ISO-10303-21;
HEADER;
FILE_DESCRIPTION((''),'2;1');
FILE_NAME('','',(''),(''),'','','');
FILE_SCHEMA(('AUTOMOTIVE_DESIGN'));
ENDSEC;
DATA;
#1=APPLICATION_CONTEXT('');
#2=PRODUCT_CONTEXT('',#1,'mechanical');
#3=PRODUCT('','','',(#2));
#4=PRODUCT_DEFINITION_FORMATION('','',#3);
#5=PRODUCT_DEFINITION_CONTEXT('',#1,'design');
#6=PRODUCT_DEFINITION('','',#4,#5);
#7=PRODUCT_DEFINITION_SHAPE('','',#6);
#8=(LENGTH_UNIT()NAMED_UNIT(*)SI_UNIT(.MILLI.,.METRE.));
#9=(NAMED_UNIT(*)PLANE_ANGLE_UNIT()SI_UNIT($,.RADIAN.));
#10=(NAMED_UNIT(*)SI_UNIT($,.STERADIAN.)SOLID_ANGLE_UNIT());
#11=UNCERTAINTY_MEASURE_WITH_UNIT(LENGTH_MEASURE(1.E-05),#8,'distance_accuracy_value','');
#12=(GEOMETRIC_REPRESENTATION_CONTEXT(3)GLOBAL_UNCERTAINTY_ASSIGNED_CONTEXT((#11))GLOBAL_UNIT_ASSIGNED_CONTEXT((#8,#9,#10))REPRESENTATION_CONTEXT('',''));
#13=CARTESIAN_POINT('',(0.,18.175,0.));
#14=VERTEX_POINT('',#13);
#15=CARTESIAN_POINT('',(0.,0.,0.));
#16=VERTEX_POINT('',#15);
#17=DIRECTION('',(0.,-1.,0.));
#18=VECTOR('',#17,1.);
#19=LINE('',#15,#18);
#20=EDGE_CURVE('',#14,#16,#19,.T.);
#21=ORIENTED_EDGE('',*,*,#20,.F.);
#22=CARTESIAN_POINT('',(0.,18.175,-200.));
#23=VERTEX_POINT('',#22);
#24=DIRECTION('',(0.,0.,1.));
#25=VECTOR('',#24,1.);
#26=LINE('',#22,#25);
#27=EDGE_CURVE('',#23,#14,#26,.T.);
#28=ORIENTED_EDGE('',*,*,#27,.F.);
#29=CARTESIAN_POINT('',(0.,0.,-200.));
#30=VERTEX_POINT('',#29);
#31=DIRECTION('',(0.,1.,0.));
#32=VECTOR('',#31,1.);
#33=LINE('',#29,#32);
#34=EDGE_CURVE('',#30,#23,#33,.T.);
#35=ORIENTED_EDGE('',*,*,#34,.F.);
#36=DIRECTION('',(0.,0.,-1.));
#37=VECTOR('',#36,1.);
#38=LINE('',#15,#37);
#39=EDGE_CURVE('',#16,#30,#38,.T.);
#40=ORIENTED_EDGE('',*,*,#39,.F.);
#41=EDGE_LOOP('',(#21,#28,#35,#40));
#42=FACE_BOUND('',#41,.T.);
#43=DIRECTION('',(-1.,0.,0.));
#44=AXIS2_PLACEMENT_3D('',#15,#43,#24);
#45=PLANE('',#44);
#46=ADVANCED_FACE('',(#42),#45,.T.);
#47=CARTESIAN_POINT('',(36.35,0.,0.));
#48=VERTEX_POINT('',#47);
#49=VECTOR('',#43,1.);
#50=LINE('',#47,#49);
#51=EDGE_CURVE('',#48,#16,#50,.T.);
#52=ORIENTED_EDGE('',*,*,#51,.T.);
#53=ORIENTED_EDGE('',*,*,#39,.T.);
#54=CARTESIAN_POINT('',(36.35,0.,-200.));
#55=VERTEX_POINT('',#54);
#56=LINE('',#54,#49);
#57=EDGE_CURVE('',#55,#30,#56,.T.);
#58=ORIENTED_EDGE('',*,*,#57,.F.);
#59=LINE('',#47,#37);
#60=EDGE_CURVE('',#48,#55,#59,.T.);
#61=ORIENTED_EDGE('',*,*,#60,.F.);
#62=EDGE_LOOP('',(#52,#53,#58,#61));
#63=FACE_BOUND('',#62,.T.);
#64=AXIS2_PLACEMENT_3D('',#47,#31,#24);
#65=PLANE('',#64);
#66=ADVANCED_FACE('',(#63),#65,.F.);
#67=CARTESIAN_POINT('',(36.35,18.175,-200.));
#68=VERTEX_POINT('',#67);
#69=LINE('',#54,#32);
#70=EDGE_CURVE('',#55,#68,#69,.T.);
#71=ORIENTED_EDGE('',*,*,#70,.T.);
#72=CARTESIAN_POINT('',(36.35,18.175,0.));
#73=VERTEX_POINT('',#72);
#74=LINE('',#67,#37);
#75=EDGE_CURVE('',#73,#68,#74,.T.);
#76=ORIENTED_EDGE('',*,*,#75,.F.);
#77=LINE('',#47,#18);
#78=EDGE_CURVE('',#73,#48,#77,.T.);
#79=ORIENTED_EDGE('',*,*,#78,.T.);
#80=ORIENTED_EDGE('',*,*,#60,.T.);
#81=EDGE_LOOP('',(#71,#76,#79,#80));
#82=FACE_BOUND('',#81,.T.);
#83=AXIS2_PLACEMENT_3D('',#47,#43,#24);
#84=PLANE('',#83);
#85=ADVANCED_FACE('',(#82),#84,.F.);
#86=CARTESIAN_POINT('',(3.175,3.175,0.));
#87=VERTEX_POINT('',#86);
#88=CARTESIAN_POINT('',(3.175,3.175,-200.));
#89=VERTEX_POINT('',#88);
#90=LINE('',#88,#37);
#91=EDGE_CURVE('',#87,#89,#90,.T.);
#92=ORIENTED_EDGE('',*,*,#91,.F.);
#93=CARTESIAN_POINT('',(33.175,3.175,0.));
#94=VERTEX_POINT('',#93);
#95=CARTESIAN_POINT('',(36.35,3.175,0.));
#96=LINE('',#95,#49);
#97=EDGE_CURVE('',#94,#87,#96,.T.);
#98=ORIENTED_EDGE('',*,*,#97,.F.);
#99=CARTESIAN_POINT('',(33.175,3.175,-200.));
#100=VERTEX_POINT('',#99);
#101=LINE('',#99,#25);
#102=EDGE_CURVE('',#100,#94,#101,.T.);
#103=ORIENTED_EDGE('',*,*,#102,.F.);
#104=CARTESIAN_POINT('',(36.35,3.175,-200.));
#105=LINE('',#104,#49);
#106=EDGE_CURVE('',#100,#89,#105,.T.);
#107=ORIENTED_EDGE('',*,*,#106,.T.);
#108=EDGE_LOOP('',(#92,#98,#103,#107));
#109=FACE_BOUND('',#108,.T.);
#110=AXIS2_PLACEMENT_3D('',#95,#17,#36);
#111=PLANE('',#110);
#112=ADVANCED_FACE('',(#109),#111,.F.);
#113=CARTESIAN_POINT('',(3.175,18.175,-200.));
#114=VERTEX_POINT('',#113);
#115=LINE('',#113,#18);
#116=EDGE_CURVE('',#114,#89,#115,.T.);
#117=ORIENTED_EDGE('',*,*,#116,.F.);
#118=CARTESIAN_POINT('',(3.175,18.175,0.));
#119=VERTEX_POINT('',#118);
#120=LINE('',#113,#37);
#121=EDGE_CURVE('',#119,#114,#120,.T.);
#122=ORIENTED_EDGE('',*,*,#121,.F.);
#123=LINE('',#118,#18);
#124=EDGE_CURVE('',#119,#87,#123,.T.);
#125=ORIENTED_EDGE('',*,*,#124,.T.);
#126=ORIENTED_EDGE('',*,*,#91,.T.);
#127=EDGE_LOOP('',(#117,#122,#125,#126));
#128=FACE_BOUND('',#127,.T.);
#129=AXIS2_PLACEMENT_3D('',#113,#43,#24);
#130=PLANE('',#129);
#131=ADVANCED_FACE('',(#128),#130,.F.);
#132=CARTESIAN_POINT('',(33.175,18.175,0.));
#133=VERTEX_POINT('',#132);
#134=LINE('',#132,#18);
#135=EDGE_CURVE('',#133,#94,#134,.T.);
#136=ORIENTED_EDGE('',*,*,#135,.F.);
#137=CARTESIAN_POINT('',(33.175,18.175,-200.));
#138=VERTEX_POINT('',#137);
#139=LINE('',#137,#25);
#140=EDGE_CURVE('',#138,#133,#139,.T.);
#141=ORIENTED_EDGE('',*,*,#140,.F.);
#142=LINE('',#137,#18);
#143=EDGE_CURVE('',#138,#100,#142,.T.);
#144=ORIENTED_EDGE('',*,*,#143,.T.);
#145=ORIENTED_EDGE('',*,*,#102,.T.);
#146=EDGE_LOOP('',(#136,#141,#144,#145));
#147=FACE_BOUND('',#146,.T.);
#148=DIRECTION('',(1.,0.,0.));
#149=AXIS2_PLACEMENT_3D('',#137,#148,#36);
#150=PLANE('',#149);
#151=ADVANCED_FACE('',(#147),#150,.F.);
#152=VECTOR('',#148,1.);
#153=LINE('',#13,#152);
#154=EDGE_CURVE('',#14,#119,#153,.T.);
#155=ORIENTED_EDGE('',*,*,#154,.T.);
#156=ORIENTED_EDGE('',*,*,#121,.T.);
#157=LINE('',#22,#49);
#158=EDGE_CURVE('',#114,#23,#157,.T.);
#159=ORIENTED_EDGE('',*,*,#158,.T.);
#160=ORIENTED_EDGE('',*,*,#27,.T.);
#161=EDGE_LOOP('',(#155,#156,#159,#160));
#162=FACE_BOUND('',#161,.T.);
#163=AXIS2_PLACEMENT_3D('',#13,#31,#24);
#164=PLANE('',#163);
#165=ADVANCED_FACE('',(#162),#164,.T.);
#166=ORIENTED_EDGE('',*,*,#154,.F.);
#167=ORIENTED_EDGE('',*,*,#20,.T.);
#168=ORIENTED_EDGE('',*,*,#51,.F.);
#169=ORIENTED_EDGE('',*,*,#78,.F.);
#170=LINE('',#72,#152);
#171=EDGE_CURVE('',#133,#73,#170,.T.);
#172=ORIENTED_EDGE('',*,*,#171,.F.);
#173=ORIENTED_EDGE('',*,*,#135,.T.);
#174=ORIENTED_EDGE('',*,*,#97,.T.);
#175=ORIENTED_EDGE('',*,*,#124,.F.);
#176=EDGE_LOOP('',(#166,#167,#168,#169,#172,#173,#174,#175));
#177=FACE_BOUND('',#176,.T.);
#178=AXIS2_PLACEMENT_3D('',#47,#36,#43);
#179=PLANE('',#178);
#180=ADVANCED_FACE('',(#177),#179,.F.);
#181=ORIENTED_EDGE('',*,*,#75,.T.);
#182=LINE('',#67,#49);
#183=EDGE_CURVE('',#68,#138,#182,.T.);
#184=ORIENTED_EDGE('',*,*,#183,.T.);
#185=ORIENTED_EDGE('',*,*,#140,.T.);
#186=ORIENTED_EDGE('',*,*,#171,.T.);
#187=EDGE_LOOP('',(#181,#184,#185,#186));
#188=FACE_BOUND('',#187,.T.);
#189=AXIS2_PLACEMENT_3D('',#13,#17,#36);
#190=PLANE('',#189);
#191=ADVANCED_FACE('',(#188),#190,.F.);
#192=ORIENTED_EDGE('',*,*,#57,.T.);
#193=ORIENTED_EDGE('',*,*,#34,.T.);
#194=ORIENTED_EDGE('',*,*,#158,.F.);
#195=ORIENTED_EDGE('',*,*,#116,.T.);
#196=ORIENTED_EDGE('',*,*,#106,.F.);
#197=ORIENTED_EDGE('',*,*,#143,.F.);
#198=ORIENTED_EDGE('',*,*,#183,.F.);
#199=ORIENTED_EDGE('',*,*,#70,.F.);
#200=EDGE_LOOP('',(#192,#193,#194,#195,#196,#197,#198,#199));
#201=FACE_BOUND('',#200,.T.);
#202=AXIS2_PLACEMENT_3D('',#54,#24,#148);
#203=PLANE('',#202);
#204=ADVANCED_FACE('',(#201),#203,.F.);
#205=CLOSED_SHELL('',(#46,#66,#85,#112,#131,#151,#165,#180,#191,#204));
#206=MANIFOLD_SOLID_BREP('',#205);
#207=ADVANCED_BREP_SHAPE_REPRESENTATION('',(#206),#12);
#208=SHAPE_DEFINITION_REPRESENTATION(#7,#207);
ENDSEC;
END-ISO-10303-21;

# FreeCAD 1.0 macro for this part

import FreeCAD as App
import Part
import Sketcher
from FreeCAD import Vector
Q = App.Units.Quantity

doc = App.newDocument("Part")
body = doc.addObject("PartDesign::Body", "Body")

# Sketch on YZ plane
sketch1 = body.newObject("Sketcher::SketchObject", "Sketch")
sketch1.AttachmentSupport = (doc.getObject("YZ_Plane"), [""])
sketch1.MapMode = "FlatFace"
sketch1.addGeometry(Part.LineSegment(Vector(3.175, 0, 0), Vector(0, 0, 0)), False)
sketch1.addGeometry(Part.LineSegment(Vector(0, 0, 0), Vector(0, -200, 0)), False)
sketch1.addGeometry(Part.LineSegment(Vector(0, -200, 0), Vector(3.175, -200, 0)), False)
sketch1.addGeometry(Part.LineSegment(Vector(3.175, -200, 0), Vector(3.175, 0, 0)), False)
sketch1.addConstraint(Sketcher.Constraint("Coincident", 0, 2, 1, 1))
sketch1.addConstraint(Sketcher.Constraint("Coincident", 1, 2, 2, 1))
sketch1.addConstraint(Sketcher.Constraint("Coincident", 2, 2, 3, 1))
sketch1.addConstraint(Sketcher.Constraint("Coincident", 3, 2, 0, 1))
sketch1.addConstraint(Sketcher.Constraint("Horizontal", 0))
sketch1.addConstraint(Sketcher.Constraint("Vertical", 1))
sketch1.addConstraint(Sketcher.Constraint("Horizontal", 2))
sketch1.addConstraint(Sketcher.Constraint("Vertical", 3))
sketch1.addConstraint(Sketcher.Constraint("Coincident", 0, 2, -1, 1))
sketch1.addConstraint(Sketcher.Constraint("DistanceY", 1, 2, 1, 1, Q("200 mm")))
sketch1.addConstraint(Sketcher.Constraint("DistanceX", 0, 2, 0, 1, Q("3.175 mm")))
pad1 = body.newObject("PartDesign::Pad", "Pad")
pad1.Profile = sketch1
pad1.Length = 36.35

# Sketch on XZ plane
sketch2 = body.newObject("Sketcher::SketchObject", "Sketch001")
sketch2.AttachmentSupport = (doc.getObject("XZ_Plane"), [""])
sketch2.MapMode = "FlatFace"
sketch2.AttachmentOffset = App.Placement(Vector(0, 0, -3.175), App.Rotation())
sketch2.addGeometry(Part.LineSegment(Vector(0, -200, 0), Vector(0, 0, 0)), False)
sketch2.addGeometry(Part.LineSegment(Vector(0, 0, 0), Vector(3.175, 0, 0)), False)
sketch2.addGeometry(Part.LineSegment(Vector(3.175, 0, 0), Vector(3.175, -200, 0)), False)
sketch2.addGeometry(Part.LineSegment(Vector(3.175, -200, 0), Vector(0, -200, 0)), False)
sketch2.addGeometry(Part.LineSegment(Vector(33.175, -200, 0), Vector(33.175, 0, 0)), False)
sketch2.addGeometry(Part.LineSegment(Vector(33.175, 0, 0), Vector(36.35, 0, 0)), False)
sketch2.addGeometry(Part.LineSegment(Vector(36.35, 0, 0), Vector(36.35, -200, 0)), False)
sketch2.addGeometry(Part.LineSegment(Vector(36.35, -200, 0), Vector(33.175, -200, 0)), False)
sketch2.addConstraint(Sketcher.Constraint("Coincident", 0, 2, 1, 1))
sketch2.addConstraint(Sketcher.Constraint("Coincident", 1, 2, 2, 1))
sketch2.addConstraint(Sketcher.Constraint("Coincident", 2, 2, 3, 1))
sketch2.addConstraint(Sketcher.Constraint("Coincident", 3, 2, 0, 1))
sketch2.addConstraint(Sketcher.Constraint("Coincident", 4, 2, 5, 1))
sketch2.addConstraint(Sketcher.Constraint("Coincident", 5, 2, 6, 1))
sketch2.addConstraint(Sketcher.Constraint("Coincident", 6, 2, 7, 1))
sketch2.addConstraint(Sketcher.Constraint("Coincident", 7, 2, 4, 1))
sketch2.addConstraint(Sketcher.Constraint("Vertical", 0))
sketch2.addConstraint(Sketcher.Constraint("Horizontal", 1))
sketch2.addConstraint(Sketcher.Constraint("Vertical", 2))
sketch2.addConstraint(Sketcher.Constraint("Horizontal", 3))
sketch2.addConstraint(Sketcher.Constraint("Vertical", 4))
sketch2.addConstraint(Sketcher.Constraint("Horizontal", 5))
sketch2.addConstraint(Sketcher.Constraint("Vertical", 6))
sketch2.addConstraint(Sketcher.Constraint("Horizontal", 7))
sketch2.addConstraint(Sketcher.Constraint("Coincident", 0, 2, -1, 1))
sketch2.addConstraint(Sketcher.Constraint("PointOnObject", 4, 2, -1))
sketch2.addConstraint(Sketcher.Constraint("Horizontal", 3, 2, 6, 2))
sketch2.addConstraint(Sketcher.Constraint("Equal", 3, 5))
sketch2.addConstraint(Sketcher.Constraint("DistanceY", 0, 1, 0, 2, Q("200 mm")))
sketch2.addConstraint(Sketcher.Constraint("DistanceX", 1, 2, 4, 2, Q("30 mm")))
sketch2.addConstraint(Sketcher.Constraint("DistanceX", 1, 1, 1, 2, Q("3.175 mm")))
pad2 = body.newObject("PartDesign::Pad", "Pad001")
pad2.Profile = sketch2
pad2.Length = 15
pad2.Reversed = True

doc.recompute()
